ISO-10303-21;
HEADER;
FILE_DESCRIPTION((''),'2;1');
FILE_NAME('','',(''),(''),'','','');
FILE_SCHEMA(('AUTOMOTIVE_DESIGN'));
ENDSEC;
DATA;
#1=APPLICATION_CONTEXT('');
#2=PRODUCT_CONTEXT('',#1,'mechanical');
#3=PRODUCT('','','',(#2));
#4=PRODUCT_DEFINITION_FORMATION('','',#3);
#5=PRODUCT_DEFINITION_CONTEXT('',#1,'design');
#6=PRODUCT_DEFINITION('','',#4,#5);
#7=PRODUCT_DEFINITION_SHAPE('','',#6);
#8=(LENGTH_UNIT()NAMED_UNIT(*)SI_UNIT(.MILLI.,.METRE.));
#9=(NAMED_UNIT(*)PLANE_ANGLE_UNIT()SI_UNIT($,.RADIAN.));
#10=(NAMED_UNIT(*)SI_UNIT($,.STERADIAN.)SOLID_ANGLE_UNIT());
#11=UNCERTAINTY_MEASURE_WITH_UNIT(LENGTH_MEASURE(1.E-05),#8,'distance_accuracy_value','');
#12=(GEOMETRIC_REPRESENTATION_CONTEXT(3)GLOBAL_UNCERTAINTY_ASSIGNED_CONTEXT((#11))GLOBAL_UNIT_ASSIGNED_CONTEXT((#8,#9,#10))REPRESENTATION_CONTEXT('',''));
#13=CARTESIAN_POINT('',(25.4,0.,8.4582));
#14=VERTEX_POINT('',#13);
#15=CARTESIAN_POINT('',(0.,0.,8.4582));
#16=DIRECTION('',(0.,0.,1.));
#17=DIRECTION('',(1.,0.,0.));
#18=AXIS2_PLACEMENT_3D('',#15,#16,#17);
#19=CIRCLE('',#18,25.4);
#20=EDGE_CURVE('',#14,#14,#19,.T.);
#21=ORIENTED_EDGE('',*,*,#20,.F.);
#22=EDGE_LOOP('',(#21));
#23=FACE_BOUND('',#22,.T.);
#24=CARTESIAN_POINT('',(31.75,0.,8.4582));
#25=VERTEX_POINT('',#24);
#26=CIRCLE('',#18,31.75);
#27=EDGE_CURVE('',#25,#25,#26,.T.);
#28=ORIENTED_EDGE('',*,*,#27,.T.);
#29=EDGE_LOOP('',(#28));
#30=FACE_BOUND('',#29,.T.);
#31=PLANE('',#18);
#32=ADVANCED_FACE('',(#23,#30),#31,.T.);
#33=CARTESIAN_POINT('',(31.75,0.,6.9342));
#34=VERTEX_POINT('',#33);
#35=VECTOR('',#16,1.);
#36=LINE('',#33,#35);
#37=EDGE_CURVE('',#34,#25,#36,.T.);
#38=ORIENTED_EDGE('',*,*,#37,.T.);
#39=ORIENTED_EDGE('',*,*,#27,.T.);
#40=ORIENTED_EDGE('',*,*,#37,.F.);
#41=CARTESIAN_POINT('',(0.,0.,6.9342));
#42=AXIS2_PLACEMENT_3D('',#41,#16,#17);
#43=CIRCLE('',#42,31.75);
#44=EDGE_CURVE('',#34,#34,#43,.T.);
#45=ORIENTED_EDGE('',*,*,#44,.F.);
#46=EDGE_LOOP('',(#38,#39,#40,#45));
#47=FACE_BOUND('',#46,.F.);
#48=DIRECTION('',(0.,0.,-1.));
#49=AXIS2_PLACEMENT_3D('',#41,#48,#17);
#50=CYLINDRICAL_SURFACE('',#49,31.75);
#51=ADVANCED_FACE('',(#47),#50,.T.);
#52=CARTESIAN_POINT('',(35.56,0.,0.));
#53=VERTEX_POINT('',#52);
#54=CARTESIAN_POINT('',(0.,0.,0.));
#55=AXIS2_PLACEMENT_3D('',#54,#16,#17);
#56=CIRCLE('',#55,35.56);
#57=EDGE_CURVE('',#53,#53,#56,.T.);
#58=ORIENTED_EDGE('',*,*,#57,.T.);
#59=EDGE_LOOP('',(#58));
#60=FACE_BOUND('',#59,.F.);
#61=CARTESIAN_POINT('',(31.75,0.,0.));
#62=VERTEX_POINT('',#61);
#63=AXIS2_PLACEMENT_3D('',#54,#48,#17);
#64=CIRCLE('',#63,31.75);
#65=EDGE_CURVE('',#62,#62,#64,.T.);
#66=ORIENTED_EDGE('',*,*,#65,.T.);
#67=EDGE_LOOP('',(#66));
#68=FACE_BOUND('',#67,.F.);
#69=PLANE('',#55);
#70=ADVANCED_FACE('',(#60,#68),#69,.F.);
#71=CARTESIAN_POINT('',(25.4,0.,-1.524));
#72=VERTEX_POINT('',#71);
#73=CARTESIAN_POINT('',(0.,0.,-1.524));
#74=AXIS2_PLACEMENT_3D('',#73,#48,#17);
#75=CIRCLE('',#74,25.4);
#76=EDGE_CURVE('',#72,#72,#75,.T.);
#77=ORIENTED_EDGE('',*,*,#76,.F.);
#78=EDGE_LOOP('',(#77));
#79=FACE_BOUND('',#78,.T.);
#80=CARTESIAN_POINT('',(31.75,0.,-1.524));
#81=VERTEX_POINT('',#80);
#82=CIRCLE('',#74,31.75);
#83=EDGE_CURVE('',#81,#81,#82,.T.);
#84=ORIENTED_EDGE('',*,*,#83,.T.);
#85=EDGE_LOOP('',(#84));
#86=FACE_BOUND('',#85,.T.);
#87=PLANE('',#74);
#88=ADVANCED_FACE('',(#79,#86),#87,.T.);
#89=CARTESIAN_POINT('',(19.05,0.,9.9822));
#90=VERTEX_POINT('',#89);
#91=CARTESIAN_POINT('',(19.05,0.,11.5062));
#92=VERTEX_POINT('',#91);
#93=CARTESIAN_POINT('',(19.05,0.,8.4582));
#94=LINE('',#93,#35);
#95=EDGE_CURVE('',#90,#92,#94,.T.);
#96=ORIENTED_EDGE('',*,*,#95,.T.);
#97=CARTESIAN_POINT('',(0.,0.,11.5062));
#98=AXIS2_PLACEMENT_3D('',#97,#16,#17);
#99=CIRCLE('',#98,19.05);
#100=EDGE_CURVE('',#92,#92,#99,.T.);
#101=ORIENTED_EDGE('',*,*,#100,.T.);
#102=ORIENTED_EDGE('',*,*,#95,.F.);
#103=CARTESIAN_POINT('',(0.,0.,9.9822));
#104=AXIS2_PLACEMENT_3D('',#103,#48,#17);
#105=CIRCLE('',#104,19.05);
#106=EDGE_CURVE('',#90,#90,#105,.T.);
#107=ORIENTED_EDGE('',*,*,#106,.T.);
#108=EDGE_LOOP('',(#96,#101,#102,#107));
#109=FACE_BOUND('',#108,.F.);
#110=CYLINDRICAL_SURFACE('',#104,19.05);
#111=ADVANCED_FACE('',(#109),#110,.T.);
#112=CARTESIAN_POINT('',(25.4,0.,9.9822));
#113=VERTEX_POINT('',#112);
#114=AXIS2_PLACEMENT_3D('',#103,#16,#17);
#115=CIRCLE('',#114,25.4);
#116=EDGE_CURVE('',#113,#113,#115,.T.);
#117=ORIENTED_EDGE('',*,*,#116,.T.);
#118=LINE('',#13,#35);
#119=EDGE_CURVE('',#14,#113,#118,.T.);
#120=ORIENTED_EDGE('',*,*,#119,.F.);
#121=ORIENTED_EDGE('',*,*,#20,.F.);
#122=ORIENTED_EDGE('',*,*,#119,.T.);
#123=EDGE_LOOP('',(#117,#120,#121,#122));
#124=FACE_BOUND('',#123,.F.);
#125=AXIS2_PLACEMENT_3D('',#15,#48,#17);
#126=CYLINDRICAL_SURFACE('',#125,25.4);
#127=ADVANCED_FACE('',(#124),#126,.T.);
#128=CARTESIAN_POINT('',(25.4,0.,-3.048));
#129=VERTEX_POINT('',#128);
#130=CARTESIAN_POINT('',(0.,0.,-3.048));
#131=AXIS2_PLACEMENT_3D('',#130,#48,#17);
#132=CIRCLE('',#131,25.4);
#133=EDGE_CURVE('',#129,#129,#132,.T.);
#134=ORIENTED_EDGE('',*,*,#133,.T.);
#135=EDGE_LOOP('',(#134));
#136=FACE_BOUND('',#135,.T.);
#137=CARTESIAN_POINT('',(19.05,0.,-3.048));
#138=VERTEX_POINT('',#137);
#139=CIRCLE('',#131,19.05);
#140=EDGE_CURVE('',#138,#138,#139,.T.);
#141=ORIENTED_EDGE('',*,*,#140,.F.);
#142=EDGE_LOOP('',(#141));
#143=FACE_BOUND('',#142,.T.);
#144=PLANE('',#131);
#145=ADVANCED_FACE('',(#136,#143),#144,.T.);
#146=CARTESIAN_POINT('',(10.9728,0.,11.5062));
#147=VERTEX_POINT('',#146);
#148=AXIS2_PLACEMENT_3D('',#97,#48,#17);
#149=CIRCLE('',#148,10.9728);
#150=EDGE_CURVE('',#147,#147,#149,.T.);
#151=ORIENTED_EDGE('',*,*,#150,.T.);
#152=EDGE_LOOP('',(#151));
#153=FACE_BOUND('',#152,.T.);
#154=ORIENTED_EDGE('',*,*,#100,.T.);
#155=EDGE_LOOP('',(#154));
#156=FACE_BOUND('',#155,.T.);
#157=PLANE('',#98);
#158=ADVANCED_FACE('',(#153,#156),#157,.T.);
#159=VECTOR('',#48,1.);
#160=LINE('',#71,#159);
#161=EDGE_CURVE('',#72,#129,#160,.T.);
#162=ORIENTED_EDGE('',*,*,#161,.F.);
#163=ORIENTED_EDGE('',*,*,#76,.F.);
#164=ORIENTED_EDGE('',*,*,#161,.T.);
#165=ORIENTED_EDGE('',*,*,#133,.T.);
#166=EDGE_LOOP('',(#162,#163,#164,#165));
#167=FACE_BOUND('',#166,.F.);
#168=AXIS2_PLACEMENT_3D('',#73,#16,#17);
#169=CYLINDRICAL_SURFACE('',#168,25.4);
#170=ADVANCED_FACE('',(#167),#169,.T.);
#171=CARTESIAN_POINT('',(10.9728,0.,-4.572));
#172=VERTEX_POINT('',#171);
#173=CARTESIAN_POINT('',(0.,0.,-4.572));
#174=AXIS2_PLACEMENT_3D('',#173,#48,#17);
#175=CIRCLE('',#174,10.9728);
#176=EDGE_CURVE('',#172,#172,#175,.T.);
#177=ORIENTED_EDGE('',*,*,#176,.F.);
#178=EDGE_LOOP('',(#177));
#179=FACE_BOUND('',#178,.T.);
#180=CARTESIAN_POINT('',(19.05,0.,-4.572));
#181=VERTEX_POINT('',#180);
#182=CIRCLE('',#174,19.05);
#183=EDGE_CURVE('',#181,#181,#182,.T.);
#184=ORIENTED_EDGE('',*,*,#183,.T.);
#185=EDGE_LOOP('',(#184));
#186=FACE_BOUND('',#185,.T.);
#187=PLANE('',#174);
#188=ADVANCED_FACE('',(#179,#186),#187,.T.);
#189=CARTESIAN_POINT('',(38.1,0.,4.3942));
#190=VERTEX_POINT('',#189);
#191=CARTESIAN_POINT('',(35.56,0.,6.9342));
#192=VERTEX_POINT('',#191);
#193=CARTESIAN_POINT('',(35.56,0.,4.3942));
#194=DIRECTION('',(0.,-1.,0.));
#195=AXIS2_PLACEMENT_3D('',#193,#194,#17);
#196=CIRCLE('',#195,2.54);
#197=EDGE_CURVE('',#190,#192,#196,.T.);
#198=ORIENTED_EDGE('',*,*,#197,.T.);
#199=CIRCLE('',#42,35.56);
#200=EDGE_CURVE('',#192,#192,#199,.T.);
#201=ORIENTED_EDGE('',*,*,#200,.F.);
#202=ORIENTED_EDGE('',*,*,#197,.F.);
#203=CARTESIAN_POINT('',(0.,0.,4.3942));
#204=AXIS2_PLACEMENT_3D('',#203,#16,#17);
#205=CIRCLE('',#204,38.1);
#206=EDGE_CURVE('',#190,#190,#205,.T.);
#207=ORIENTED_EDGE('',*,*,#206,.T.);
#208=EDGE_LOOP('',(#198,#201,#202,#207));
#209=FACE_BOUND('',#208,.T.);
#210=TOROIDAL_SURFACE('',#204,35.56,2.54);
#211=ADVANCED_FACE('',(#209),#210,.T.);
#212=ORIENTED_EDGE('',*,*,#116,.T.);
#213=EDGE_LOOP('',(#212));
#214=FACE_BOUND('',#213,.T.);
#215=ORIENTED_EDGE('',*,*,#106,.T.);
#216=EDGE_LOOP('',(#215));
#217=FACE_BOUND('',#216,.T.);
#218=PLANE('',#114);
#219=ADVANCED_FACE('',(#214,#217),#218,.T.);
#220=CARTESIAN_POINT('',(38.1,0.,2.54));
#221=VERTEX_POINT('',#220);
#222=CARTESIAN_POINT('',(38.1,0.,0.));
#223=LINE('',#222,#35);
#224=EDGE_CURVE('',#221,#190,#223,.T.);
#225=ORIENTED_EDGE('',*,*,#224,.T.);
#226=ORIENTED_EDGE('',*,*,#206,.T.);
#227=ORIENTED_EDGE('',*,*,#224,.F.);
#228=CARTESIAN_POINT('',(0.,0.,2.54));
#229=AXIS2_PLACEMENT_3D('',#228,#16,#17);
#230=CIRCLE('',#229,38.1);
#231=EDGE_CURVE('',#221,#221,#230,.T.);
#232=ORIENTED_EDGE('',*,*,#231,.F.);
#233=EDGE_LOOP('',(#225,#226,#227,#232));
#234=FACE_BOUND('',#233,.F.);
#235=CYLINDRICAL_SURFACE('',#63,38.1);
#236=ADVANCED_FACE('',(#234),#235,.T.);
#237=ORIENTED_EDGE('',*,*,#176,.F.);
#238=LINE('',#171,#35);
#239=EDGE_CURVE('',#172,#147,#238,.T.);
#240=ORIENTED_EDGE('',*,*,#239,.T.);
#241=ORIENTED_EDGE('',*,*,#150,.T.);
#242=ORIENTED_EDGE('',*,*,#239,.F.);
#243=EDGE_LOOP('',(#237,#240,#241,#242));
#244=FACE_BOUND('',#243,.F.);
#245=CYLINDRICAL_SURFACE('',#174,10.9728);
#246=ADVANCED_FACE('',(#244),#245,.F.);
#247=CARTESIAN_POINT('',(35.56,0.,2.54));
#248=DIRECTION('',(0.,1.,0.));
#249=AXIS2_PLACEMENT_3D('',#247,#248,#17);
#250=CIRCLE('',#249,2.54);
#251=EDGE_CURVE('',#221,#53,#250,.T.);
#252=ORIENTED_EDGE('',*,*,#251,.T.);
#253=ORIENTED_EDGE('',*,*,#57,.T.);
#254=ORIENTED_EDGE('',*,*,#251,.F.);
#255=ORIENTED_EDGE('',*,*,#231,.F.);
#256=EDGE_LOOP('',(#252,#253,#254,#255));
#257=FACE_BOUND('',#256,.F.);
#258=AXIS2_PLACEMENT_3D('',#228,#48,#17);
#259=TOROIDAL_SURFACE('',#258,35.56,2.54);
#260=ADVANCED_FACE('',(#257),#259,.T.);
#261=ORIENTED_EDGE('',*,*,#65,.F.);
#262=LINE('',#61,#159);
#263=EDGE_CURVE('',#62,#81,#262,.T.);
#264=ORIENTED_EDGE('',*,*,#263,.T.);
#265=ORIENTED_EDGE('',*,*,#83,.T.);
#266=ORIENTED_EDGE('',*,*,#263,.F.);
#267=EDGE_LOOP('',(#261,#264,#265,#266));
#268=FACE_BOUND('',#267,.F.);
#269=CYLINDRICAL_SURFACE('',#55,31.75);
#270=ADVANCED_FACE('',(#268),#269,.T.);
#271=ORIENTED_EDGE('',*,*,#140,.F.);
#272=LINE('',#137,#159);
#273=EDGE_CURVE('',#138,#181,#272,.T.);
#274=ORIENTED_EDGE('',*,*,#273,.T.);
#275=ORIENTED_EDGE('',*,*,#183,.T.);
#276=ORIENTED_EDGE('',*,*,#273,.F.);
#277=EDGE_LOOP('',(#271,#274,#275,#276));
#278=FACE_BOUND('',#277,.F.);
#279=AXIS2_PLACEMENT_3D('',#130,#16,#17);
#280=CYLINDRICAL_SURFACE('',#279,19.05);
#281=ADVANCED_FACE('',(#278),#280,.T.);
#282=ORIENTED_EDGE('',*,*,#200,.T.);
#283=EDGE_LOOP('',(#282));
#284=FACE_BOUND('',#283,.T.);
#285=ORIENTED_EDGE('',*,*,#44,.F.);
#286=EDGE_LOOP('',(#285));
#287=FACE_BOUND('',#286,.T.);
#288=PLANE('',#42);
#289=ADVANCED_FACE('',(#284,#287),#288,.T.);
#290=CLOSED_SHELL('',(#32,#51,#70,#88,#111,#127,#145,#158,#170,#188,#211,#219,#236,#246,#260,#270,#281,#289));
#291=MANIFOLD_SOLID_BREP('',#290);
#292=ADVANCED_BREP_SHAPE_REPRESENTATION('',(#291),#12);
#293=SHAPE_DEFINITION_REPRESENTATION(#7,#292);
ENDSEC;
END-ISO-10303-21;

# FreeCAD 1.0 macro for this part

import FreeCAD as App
import Part
import Sketcher
from FreeCAD import Vector
Q = App.Units.Quantity


def edges_at(feature, points):
    """Names of the edges that pass closest to the given points."""
    edges = feature.Shape.Edges
    near = lambda p: min(range(len(edges)), key=lambda i: edges[i].distToShape(Part.Vertex(*p))[0])
    return sorted({f"Edge{near(p) + 1}" for p in points})

doc = App.newDocument("Part")
body = doc.addObject("PartDesign::Body", "Body")

# Sketch on XY plane
sketch1 = body.newObject("Sketcher::SketchObject", "Sketch")
sketch1.AttachmentSupport = (doc.getObject("XY_Plane"), [""])
sketch1.MapMode = "FlatFace"
sketch1.addGeometry(Part.Circle(Vector(0, 0, 0), Vector(0, 0, 1), 38), False)
sketch1.addConstraint([
    Sketcher.Constraint("Coincident", 0, 3, -1, 1),
    Sketcher.Constraint("Diameter", 0, Q("3 in")),
])
pad1 = body.newObject("PartDesign::Pad", "Pad")
pad1.Profile = sketch1
pad1.Length = Q("0.273 in")
doc.recompute()

fillet = body.newObject("PartDesign::Fillet", "Fillet")
fillet.Base = (pad1, edges_at(pad1, [(-38.1, 0, 6.934), (-38.1, 0, 0)]))
fillet.Radius = Q("0.1 in")

# Sketch on XY plane
sketch2 = body.newObject("Sketcher::SketchObject", "Sketch001")
sketch2.AttachmentSupport = (doc.getObject("XY_Plane"), [""])
sketch2.MapMode = "FlatFace"
sketch2.addGeometry(Part.Circle(Vector(0, 0, 0), Vector(0, 0, 1), 32), False)
sketch2.addConstraint([
    Sketcher.Constraint("Coincident", 0, 3, -1, 1),
    Sketcher.Constraint("Diameter", 0, Q("2.5 in")),
])
pad2 = body.newObject("PartDesign::Pad", "Pad001")
pad2.Profile = sketch2
pad2.Length = Q("0.06 in")
pad2.Reversed = True

# Sketch on XY plane
sketch3 = body.newObject("Sketcher::SketchObject", "Sketch002")
sketch3.AttachmentSupport = (doc.getObject("XY_Plane"), [""])
sketch3.MapMode = "FlatFace"
sketch3.AttachmentOffset = App.Placement(Vector(0, 0, -0.06 * 25.4), App.Rotation())
sketch3.addGeometry(Part.Circle(Vector(0, 0, 0), Vector(0, 0, 1), 25), False)
sketch3.addConstraint([
    Sketcher.Constraint("Coincident", 0, 3, -1, 1),
    Sketcher.Constraint("Diameter", 0, Q("2 in")),
])
pad3 = body.newObject("PartDesign::Pad", "Pad002")
pad3.Profile = sketch3
pad3.Length = Q("0.06 in")
pad3.Reversed = True
body2 = doc.addObject("PartDesign::Body", "Body001")

# Sketch on XY plane
sketch4 = body2.newObject("Sketcher::SketchObject", "Sketch003")
sketch4.AttachmentSupport = (doc.getObject("XY_Plane001"), [""])
sketch4.MapMode = "FlatFace"
sketch4.AttachmentOffset = App.Placement(Vector(0, 0, 0.333 * 25.4), App.Rotation())
sketch4.addGeometry(Part.Circle(Vector(0, 0, 0), Vector(0, 0, 1), 19), False)
sketch4.addConstraint([
    Sketcher.Constraint("Coincident", 0, 3, -1, 1),
    Sketcher.Constraint("Diameter", 0, Q("1.5 in")),
])
pad4 = body2.newObject("PartDesign::Pad", "Pad003")
pad4.Profile = sketch4
pad4.Length = Q("0.06 in")

# Sketch on XY plane
sketch5 = body2.newObject("Sketcher::SketchObject", "Sketch004")
sketch5.AttachmentSupport = (doc.getObject("XY_Plane001"), [""])
sketch5.MapMode = "FlatFace"
sketch5.AttachmentOffset = App.Placement(Vector(0, 0, 0.393 * 25.4), App.Rotation())
sketch5.addGeometry(Part.Circle(Vector(0, 0, 0), Vector(0, 0, 1), 19), False)
sketch5.addConstraint([
    Sketcher.Constraint("Coincident", 0, 3, -1, 1),
    Sketcher.Constraint("Diameter", 0, Q("1.5 in")),
])
pad5 = body2.newObject("PartDesign::Pad", "Pad004")
pad5.Profile = sketch5
pad5.Length = Q("0.06 in")
body.AllowCompound = True
doc.recompute()

boolean = body.newObject("PartDesign::Boolean", "Boolean")
boolean.Type = "Fuse"
boolean.addObjects([body2])

# Sketch on XY plane
sketch6 = body.newObject("Sketcher::SketchObject", "Sketch005")
sketch6.AttachmentSupport = (doc.getObject("XY_Plane"), [""])
sketch6.MapMode = "FlatFace"
sketch6.AttachmentOffset = App.Placement(Vector(0, 0, 0.273 * 25.4), App.Rotation())
sketch6.addGeometry(Part.Circle(Vector(0, 0, 0), Vector(0, 0, 1), 32), False)
sketch6.addConstraint([
    Sketcher.Constraint("Coincident", 0, 3, -1, 1),
    Sketcher.Constraint("Diameter", 0, Q("2.5 in")),
])
pad6 = body.newObject("PartDesign::Pad", "Pad005")
pad6.Profile = sketch6
pad6.Length = Q("0.06 in")

# Sketch on XY plane
sketch7 = body.newObject("Sketcher::SketchObject", "Sketch006")
sketch7.AttachmentSupport = (doc.getObject("XY_Plane"), [""])
sketch7.MapMode = "FlatFace"
sketch7.AttachmentOffset = App.Placement(Vector(0, 0, 0.333 * 25.4), App.Rotation())
sketch7.addGeometry(Part.Circle(Vector(0, 0, 0), Vector(0, 0, 1), 25), False)
sketch7.addConstraint([
    Sketcher.Constraint("Coincident", 0, 3, -1, 1),
    Sketcher.Constraint("Diameter", 0, Q("2 in")),
])
pad7 = body.newObject("PartDesign::Pad", "Pad006")
pad7.Profile = sketch7
pad7.Length = Q("0.06 in")

# Sketch on XY plane
sketch8 = body.newObject("Sketcher::SketchObject", "Sketch007")
sketch8.AttachmentSupport = (doc.getObject("XY_Plane"), [""])
sketch8.MapMode = "FlatFace"
sketch8.AttachmentOffset = App.Placement(Vector(0, 0, -0.12 * 25.4), App.Rotation())
sketch8.addGeometry(Part.Circle(Vector(0, 0, 0), Vector(0, 0, 1), 19), False)
sketch8.addConstraint([
    Sketcher.Constraint("Coincident", 0, 3, -1, 1),
    Sketcher.Constraint("Diameter", 0, Q("1.5 in")),
])
pad8 = body.newObject("PartDesign::Pad", "Pad007")
pad8.Profile = sketch8
pad8.Length = Q("0.06 in")
pad8.Reversed = True

# Sketch on XY plane
sketch9 = body.newObject("Sketcher::SketchObject", "Sketch008")
sketch9.AttachmentSupport = (doc.getObject("XY_Plane"), [""])
sketch9.MapMode = "FlatFace"
sketch9.AttachmentOffset = App.Placement(Vector(0, 0, -0.18 * 25.4), App.Rotation())
sketch9.addGeometry(Part.Circle(Vector(0, 0, 0), Vector(0, 0, 1), 11), False)
sketch9.addConstraint([
    Sketcher.Constraint("Coincident", 0, 3, -1, 1),
    Sketcher.Constraint("Diameter", 0, Q("0.864 in")),
])
pocket1 = body.newObject("PartDesign::Pocket", "Pocket")
pocket1.Profile = sketch9
pocket1.Length = Q("1 in")
pocket1.Reversed = True

doc.recompute()
